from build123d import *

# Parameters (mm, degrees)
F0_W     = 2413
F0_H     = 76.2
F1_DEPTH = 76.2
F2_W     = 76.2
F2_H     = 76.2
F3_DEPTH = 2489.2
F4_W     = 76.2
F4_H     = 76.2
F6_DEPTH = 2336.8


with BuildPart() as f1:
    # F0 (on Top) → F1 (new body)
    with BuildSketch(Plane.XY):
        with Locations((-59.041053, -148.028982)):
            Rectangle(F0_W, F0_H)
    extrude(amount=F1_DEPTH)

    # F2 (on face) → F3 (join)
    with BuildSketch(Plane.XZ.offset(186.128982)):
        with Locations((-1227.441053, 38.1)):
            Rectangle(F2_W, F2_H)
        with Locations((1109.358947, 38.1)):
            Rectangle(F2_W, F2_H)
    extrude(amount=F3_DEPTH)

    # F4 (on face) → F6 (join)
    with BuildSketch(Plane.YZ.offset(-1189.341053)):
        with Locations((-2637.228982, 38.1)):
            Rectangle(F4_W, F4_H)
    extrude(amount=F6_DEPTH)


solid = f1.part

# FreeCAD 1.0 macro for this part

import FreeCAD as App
import Part
import Sketcher
Q = App.Units.Quantity

doc = App.newDocument("Part")
body = doc.addObject("PartDesign::Body", "Body")

# Sketch on XY plane
sketch1 = body.newObject("Sketcher::SketchObject", "Sketch")
sketch1.AttachmentSupport = (doc.getObject("XY_Plane"), [""])
sketch1.MapMode = "FlatFace"
sketch1.addGeometry(Part.LineSegment(App.Vector(-1266, -110, 0), App.Vector(-1266, -186, 0)), False)
sketch1.addGeometry(Part.LineSegment(App.Vector(-1266, -186, 0), App.Vector(1147, -186, 0)), False)
sketch1.addGeometry(Part.LineSegment(App.Vector(1147, -186, 0), App.Vector(1147, -110, 0)), False)
sketch1.addGeometry(Part.LineSegment(App.Vector(1147, -110, 0), App.Vector(-1266, -110, 0)), False)
sketch1.addConstraint(Sketcher.Constraint("Coincident", 0, 2, 1, 1))
sketch1.addConstraint(Sketcher.Constraint("Coincident", 1, 2, 2, 1))
sketch1.addConstraint(Sketcher.Constraint("Coincident", 2, 2, 3, 1))
sketch1.addConstraint(Sketcher.Constraint("Coincident", 3, 2, 0, 1))
sketch1.addConstraint(Sketcher.Constraint("Vertical", 0))
sketch1.addConstraint(Sketcher.Constraint("Horizontal", 1))
sketch1.addConstraint(Sketcher.Constraint("Vertical", 2))
sketch1.addConstraint(Sketcher.Constraint("Horizontal", 3))
sketch1.addConstraint(Sketcher.Constraint("DistanceX", 1, 1, 1, 2, Q("95 in")))
sketch1.addConstraint(Sketcher.Constraint("DistanceY", 0, 2, 0, 1, Q("3 in")))
sketch1.addConstraint(Sketcher.Constraint("DistanceY", 0, 2, -1, 1, 186.128982))
sketch1.addConstraint(Sketcher.Constraint("DistanceX", 0, 2, -1, 1, 1265.541053))
pad1 = body.newObject("PartDesign::Pad", "Pad")
pad1.Profile = sketch1
pad1.Length = Q("3 in")

# Sketch on XZ plane
sketch2 = body.newObject("Sketcher::SketchObject", "Sketch001")
sketch2.AttachmentSupport = (doc.getObject("XZ_Plane"), [""])
sketch2.MapMode = "FlatFace"
sketch2.AttachmentOffset = App.Placement(App.Vector(0, 0, 186.128982), App.Rotation())
sketch2.addGeometry(Part.LineSegment(App.Vector(-1266, 76, 0), App.Vector(-1266, 0, 0)), False)
sketch2.addGeometry(Part.LineSegment(App.Vector(-1266, 0, 0), App.Vector(-1189, 0, 0)), False)
sketch2.addGeometry(Part.LineSegment(App.Vector(-1189, 0, 0), App.Vector(-1189, 76, 0)), False)
sketch2.addGeometry(Part.LineSegment(App.Vector(-1189, 76, 0), App.Vector(-1266, 76, 0)), False)
sketch2.addGeometry(Part.LineSegment(App.Vector(1071, 76, 0), App.Vector(1071, 0, 0)), False)
sketch2.addGeometry(Part.LineSegment(App.Vector(1071, 0, 0), App.Vector(1147, 0, 0)), False)
sketch2.addGeometry(Part.LineSegment(App.Vector(1147, 0, 0), App.Vector(1147, 76, 0)), False)
sketch2.addGeometry(Part.LineSegment(App.Vector(1147, 76, 0), App.Vector(1071, 76, 0)), False)
sketch2.addConstraint(Sketcher.Constraint("Coincident", 0, 2, 1, 1))
sketch2.addConstraint(Sketcher.Constraint("Coincident", 1, 2, 2, 1))
sketch2.addConstraint(Sketcher.Constraint("Coincident", 2, 2, 3, 1))
sketch2.addConstraint(Sketcher.Constraint("Coincident", 3, 2, 0, 1))
sketch2.addConstraint(Sketcher.Constraint("Coincident", 4, 2, 5, 1))
sketch2.addConstraint(Sketcher.Constraint("Coincident", 5, 2, 6, 1))
sketch2.addConstraint(Sketcher.Constraint("Coincident", 6, 2, 7, 1))
sketch2.addConstraint(Sketcher.Constraint("Coincident", 7, 2, 4, 1))
sketch2.addConstraint(Sketcher.Constraint("Vertical", 0))
sketch2.addConstraint(Sketcher.Constraint("Horizontal", 1))
sketch2.addConstraint(Sketcher.Constraint("Vertical", 2))
sketch2.addConstraint(Sketcher.Constraint("Horizontal", 3))
sketch2.addConstraint(Sketcher.Constraint("Vertical", 4))
sketch2.addConstraint(Sketcher.Constraint("Horizontal", 5))
sketch2.addConstraint(Sketcher.Constraint("Vertical", 6))
sketch2.addConstraint(Sketcher.Constraint("Horizontal", 7))
sketch2.addConstraint(Sketcher.Constraint("PointOnObject", 0, 2, -1))
sketch2.addConstraint(Sketcher.Constraint("PointOnObject", 4, 2, -1))
sketch2.addConstraint(Sketcher.Constraint("Horizontal", 3, 2, 6, 2))
sketch2.addConstraint(Sketcher.Constraint("Equal", 3, 5))
sketch2.addConstraint(Sketcher.Constraint("Equal", 7, 0))
sketch2.addConstraint(Sketcher.Constraint("DistanceX", 1, 1, 1, 2, Q("3 in")))
sketch2.addConstraint(Sketcher.Constraint("DistanceX", 1, 2, 4, 2, Q("89 in")))
sketch2.addConstraint(Sketcher.Constraint("DistanceX", 0, 2, -1, 1, 1265.541053))
pad2 = body.newObject("PartDesign::Pad", "Pad001")
pad2.Profile = sketch2
pad2.Length = Q("98 in")

# Sketch on YZ plane
sketch3 = body.newObject("Sketcher::SketchObject", "Sketch002")
sketch3.AttachmentSupport = (doc.getObject("YZ_Plane"), [""])
sketch3.MapMode = "FlatFace"
sketch3.AttachmentOffset = App.Placement(App.Vector(0, 0, -1189.341053), App.Rotation())
sketch3.addGeometry(Part.LineSegment(App.Vector(-2675, 76, 0), App.Vector(-2675, 0, 0)), False)
sketch3.addGeometry(Part.LineSegment(App.Vector(-2675, 0, 0), App.Vector(-2599, 0, 0)), False)
sketch3.addGeometry(Part.LineSegment(App.Vector(-2599, 0, 0), App.Vector(-2599, 76, 0)), False)
sketch3.addGeometry(Part.LineSegment(App.Vector(-2599, 76, 0), App.Vector(-2675, 76, 0)), False)
sketch3.addConstraint(Sketcher.Constraint("Coincident", 0, 2, 1, 1))
sketch3.addConstraint(Sketcher.Constraint("Coincident", 1, 2, 2, 1))
sketch3.addConstraint(Sketcher.Constraint("Coincident", 2, 2, 3, 1))
sketch3.addConstraint(Sketcher.Constraint("Coincident", 3, 2, 0, 1))
sketch3.addConstraint(Sketcher.Constraint("Vertical", 0))
sketch3.addConstraint(Sketcher.Constraint("Horizontal", 1))
sketch3.addConstraint(Sketcher.Constraint("Vertical", 2))
sketch3.addConstraint(Sketcher.Constraint("Horizontal", 3))
sketch3.addConstraint(Sketcher.Constraint("PointOnObject", 0, 2, -1))
sketch3.addConstraint(Sketcher.Constraint("Equal", 3, 0))
sketch3.addConstraint(Sketcher.Constraint("DistanceX", 1, 1, 1, 2, Q("3 in")))
sketch3.addConstraint(Sketcher.Constraint("DistanceX", 0, 2, -1, 1, 2675.328982))
pad3 = body.newObject("PartDesign::Pad", "Pad002")
pad3.Profile = sketch3
pad3.Length = Q("92 in")

doc.recompute()
